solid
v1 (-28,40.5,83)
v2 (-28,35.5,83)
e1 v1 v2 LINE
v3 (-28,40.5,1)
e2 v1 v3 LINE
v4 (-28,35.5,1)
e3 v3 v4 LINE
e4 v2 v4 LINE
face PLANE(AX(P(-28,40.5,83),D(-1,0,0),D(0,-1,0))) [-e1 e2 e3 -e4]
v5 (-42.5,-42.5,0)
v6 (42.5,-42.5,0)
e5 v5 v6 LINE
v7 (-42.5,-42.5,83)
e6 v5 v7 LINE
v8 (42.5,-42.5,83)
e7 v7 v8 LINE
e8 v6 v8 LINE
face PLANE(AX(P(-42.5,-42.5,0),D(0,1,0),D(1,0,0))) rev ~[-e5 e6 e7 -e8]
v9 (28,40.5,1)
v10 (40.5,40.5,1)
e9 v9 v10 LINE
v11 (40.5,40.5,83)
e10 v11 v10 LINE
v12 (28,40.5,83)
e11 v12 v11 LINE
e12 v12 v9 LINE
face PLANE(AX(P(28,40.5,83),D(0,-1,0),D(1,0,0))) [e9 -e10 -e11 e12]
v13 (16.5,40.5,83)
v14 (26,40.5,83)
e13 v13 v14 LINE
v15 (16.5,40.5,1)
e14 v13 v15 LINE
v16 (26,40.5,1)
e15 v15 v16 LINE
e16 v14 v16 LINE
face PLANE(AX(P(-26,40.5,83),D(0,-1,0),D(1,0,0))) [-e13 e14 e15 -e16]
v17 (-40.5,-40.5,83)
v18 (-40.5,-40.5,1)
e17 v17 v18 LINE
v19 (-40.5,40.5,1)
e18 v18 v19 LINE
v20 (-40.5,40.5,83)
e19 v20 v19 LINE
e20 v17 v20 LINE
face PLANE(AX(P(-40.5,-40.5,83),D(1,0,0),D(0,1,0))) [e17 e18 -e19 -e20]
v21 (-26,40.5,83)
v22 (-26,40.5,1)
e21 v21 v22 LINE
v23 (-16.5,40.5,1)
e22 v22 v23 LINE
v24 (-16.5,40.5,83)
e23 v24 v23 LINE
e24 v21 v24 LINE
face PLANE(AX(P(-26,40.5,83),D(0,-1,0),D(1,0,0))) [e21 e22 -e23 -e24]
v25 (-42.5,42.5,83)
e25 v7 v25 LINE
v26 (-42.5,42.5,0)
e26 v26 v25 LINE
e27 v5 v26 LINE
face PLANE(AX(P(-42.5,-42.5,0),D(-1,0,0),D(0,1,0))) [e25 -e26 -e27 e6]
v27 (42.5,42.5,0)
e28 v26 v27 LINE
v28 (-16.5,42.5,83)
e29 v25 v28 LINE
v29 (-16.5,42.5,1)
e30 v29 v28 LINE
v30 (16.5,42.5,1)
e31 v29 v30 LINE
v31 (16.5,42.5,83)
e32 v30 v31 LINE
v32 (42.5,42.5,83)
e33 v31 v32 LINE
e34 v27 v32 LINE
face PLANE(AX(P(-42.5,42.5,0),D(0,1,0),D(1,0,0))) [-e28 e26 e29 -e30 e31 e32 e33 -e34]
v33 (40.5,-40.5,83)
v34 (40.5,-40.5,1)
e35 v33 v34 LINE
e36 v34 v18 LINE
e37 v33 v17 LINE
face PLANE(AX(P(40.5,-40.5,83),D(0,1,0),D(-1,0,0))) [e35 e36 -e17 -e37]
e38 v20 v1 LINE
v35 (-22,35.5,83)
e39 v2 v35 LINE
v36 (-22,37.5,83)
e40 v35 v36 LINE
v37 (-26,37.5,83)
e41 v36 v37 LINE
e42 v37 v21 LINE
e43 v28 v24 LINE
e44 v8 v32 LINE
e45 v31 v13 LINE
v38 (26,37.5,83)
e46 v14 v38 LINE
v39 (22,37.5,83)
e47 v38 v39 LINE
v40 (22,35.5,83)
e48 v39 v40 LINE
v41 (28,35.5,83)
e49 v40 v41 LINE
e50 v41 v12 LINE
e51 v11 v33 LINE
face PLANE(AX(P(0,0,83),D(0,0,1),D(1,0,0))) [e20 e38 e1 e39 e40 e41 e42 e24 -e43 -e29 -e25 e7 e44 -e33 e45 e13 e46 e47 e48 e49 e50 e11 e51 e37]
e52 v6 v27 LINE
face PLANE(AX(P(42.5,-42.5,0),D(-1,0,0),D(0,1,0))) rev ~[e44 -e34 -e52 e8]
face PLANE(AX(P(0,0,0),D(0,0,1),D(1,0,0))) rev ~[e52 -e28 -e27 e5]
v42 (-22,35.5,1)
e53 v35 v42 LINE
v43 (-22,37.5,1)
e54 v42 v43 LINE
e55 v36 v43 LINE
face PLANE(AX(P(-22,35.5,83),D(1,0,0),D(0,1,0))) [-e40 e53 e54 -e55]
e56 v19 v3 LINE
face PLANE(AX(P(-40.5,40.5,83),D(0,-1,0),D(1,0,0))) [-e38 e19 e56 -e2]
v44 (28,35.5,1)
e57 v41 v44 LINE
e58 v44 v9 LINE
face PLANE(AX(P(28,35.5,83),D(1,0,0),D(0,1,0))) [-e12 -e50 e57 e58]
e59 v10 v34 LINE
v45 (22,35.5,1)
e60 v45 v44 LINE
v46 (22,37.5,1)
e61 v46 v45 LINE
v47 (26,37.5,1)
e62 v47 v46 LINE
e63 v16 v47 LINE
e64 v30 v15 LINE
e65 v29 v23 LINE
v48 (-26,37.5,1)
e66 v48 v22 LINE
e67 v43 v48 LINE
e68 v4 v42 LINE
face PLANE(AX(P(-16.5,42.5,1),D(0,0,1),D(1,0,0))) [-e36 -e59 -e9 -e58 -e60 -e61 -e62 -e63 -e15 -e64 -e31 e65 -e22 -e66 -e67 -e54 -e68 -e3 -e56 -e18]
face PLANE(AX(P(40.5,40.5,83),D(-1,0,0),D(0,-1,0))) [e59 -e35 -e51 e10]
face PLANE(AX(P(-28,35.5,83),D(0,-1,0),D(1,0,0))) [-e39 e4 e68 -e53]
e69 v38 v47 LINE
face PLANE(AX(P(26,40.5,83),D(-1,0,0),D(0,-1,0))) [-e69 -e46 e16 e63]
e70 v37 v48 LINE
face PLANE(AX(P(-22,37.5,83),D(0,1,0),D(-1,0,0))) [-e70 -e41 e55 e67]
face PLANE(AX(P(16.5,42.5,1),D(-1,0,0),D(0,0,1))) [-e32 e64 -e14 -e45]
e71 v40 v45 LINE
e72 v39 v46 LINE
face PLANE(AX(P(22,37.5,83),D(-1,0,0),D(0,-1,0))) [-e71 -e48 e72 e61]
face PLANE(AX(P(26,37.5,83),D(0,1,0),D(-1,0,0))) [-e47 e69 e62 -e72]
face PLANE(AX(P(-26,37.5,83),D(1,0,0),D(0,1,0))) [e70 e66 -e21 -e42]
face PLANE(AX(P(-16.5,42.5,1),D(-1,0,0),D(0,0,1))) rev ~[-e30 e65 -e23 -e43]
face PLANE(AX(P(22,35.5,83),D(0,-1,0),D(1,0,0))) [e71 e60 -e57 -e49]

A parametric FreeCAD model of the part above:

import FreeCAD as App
import Part
import Sketcher
from FreeCAD import Vector
Q = App.Units.Quantity


def add_polygon(sketch, points):
    """Adds a closed chain of lines whose ends are joined by coincident constraints."""
    first, n = sketch.GeometryCount, len(points)
    for a, b in zip(points, points[1:] + points[:1]):
        sketch.addGeometry(Part.LineSegment(App.Vector(*a, 0), App.Vector(*b, 0)), False)
    for i in range(n):
        sketch.addConstraint(Sketcher.Constraint("Coincident", first + i, 2, first + (i + 1) % n, 1))

doc = App.newDocument("Part")
body = doc.addObject("PartDesign::Body", "Body")

sketch1 = body.newObject("Sketcher::SketchObject", "Sketch")
sketch1.AttachmentSupport = (doc.getObject("XY_Plane"), [""])
sketch1.MapMode = "FlatFace"
add_polygon(sketch1, [(-42, 42), (-42, -42), (42, -42), (42, 42)])
sketch1.addConstraint(Sketcher.Constraint("Vertical", 0))
sketch1.addConstraint(Sketcher.Constraint("Horizontal", 1))
sketch1.addConstraint(Sketcher.Constraint("Vertical", 2))
sketch1.addConstraint(Sketcher.Constraint("Horizontal", 3))
sketch1.addConstraint(Sketcher.Constraint("Symmetric", 0, 2, 2, 2, -1, 1))
sketch1.addConstraint(Sketcher.Constraint("Equal", 3, 0))
sketch1.addConstraint(Sketcher.Constraint("DistanceX", 1, 1, 1, 2, Q("85 mm")))
pad1 = body.newObject("PartDesign::Pad", "Pad")
pad1.Profile = sketch1
pad1.Length = 83

sketch2 = body.newObject("Sketcher::SketchObject", "Sketch001")
sketch2.AttachmentSupport = (doc.getObject("XY_Plane"), [""])
sketch2.MapMode = "FlatFace"
sketch2.AttachmentOffset = App.Placement(Vector(0, 0, 83), App.Rotation())
add_polygon(sketch2, [(-40.5, -40.5), (-40.5, 40.5), (-28, 40.5), (-28, 35.5), (-22, 35.5), (-22, 37.5), (-26, 37.5), (-26, 40.5), (26, 40.5), (26, 37.5), (22, 37.5), (22, 35.5), (28, 35.5), (28, 40.5), (40.5, 40.5), (40.5, -40.5)])
sketch2.addConstraint(Sketcher.Constraint("Vertical", 0))
sketch2.addConstraint(Sketcher.Constraint("Horizontal", 1))
sketch2.addConstraint(Sketcher.Constraint("Vertical", 2))
sketch2.addConstraint(Sketcher.Constraint("Horizontal", 3))
sketch2.addConstraint(Sketcher.Constraint("Vertical", 4))
sketch2.addConstraint(Sketcher.Constraint("Horizontal", 5))
sketch2.addConstraint(Sketcher.Constraint("Vertical", 6))
sketch2.addConstraint(Sketcher.Constraint("Horizontal", 7))
sketch2.addConstraint(Sketcher.Constraint("Vertical", 8))
sketch2.addConstraint(Sketcher.Constraint("Horizontal", 9))
sketch2.addConstraint(Sketcher.Constraint("Vertical", 10))
sketch2.addConstraint(Sketcher.Constraint("Horizontal", 11))
sketch2.addConstraint(Sketcher.Constraint("Vertical", 12))
sketch2.addConstraint(Sketcher.Constraint("Horizontal", 13))
sketch2.addConstraint(Sketcher.Constraint("Vertical", 14))
sketch2.addConstraint(Sketcher.Constraint("Horizontal", 15))
sketch2.addConstraint(Sketcher.Constraint("Symmetric", 0, 2, 14, 2, -1, 1))
sketch2.addConstraint(Sketcher.Constraint("Symmetric", 5, 2, 8, 2, -2))
sketch2.addConstraint(Sketcher.Constraint("Symmetric", 3, 2, 10, 2, -2))
sketch2.addConstraint(Sketcher.Constraint("Symmetric", 1, 2, 12, 2, -2))
sketch2.addConstraint(Sketcher.Constraint("Horizontal", 1, 2, 6, 2))
sketch2.addConstraint(Sketcher.Constraint("Equal", 15, 0))
sketch2.addConstraint(Sketcher.Constraint("DistanceX", 3, 1, 3, 2, Q("6 mm")))
sketch2.addConstraint(Sketcher.Constraint("DistanceX", 5, 2, 5, 1, Q("4 mm")))
sketch2.addConstraint(Sketcher.Constraint("DistanceX", 7, 1, 7, 2, Q("52 mm")))
sketch2.addConstraint(Sketcher.Constraint("DistanceX", 15, 2, 15, 1, Q("81 mm")))
sketch2.addConstraint(Sketcher.Constraint("DistanceY", 2, 2, 2, 1, Q("5 mm")))
sketch2.addConstraint(Sketcher.Constraint("DistanceY", 4, 1, 4, 2, Q("2 mm")))
pocket1 = body.newObject("PartDesign::Pocket", "Pocket")
pocket1.Profile = sketch2
pocket1.Length = 82

sketch3 = body.newObject("Sketcher::SketchObject", "Sketch002")
sketch3.AttachmentSupport = (doc.getObject("XZ_Plane"), [""])
sketch3.MapMode = "FlatFace"
sketch3.AttachmentOffset = App.Placement(Vector(0, 0, -42.5), App.Rotation())
add_polygon(sketch3, [(-16, 83), (-16, 1), (16, 1), (16, 83)])
sketch3.addConstraint(Sketcher.Constraint("Vertical", 0))
sketch3.addConstraint(Sketcher.Constraint("Horizontal", 1))
sketch3.addConstraint(Sketcher.Constraint("Vertical", 2))
sketch3.addConstraint(Sketcher.Constraint("Horizontal", 3))
sketch3.addConstraint(Sketcher.Constraint("DistanceX", 1, 1, 1, 2, Q("33 mm")))
sketch3.addConstraint(Sketcher.Constraint("DistanceY", 0, 2, 0, 1, Q("82 mm")))
sketch3.addConstraint(Sketcher.Constraint("DistanceY", -1, 1, 0, 2, Q("1 mm")))
sketch3.addConstraint(Sketcher.Constraint("DistanceX", 0, 2, -1, 1, Q("16.5 mm")))
pocket2 = body.newObject("PartDesign::Pocket", "Pocket001")
pocket2.Profile = sketch3
pocket2.Length = 5
pocket2.Reversed = True

doc.recompute()
